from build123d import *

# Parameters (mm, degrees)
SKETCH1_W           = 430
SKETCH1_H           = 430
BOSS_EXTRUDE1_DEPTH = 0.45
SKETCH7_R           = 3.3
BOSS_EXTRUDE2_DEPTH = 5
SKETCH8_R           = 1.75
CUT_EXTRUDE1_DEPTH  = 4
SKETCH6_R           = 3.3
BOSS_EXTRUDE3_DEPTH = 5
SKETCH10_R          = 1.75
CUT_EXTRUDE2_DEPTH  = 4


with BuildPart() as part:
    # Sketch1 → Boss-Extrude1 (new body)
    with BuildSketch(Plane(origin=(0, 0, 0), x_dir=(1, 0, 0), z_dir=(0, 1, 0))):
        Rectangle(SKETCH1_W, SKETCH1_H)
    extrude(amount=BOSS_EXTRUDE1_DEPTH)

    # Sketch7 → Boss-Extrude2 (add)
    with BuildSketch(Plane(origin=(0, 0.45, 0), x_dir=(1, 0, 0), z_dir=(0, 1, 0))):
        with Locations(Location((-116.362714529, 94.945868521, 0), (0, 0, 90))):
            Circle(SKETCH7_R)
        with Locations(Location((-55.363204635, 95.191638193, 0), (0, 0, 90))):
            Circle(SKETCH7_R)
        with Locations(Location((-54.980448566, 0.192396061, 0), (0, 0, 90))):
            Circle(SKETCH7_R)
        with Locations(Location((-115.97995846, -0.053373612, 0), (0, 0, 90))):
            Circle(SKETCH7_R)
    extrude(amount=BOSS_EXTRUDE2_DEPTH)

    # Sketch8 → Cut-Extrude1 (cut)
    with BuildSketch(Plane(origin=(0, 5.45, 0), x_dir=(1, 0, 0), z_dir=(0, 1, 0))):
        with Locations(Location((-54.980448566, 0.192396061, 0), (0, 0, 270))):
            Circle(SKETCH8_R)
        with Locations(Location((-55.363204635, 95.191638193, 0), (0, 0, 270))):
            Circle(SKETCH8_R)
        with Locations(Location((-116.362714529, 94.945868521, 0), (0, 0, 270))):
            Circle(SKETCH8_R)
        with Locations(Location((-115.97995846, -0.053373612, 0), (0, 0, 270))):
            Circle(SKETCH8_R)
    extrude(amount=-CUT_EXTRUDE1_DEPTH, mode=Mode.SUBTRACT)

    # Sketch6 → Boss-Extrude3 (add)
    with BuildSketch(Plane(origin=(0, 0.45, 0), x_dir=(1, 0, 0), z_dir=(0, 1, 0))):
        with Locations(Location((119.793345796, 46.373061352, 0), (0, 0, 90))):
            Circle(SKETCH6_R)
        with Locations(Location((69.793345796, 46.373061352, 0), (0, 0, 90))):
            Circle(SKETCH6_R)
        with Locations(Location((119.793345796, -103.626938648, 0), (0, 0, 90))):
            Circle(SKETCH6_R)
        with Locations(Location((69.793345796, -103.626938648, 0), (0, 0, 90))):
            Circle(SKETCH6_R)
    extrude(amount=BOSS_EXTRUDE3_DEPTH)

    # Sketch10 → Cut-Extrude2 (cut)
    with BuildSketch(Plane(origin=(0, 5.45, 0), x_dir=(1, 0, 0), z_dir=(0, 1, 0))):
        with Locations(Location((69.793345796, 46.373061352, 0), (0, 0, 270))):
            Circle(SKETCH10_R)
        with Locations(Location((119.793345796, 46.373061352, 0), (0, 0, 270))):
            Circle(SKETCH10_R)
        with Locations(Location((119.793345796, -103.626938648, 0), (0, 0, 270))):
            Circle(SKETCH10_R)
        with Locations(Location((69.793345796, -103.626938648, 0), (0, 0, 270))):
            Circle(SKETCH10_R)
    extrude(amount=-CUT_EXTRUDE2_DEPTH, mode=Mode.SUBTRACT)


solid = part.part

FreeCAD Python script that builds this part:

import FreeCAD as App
import Part
import Sketcher
from FreeCAD import Vector


def add_polygon(sketch, points):
    """Adds a closed chain of lines whose ends are joined by coincident constraints."""
    first, n = sketch.GeometryCount, len(points)
    for a, b in zip(points, points[1:] + points[:1]):
        sketch.addGeometry(Part.LineSegment(App.Vector(*a, 0), App.Vector(*b, 0)), False)
    for i in range(n):
        sketch.addConstraint(Sketcher.Constraint("Coincident", first + i, 2, first + (i + 1) % n, 1))

doc = App.newDocument("Part")
body = doc.addObject("PartDesign::Body", "Body")

# Sketch on XZ plane
sketch1 = body.newObject("Sketcher::SketchObject", "Sketch")
sketch1.AttachmentSupport = (doc.getObject("XZ_Plane"), [""])
sketch1.MapMode = "FlatFace"
add_polygon(sketch1, [(-215, -215), (-215, 215), (215, 215), (215, -215)])  # lines 0-3
sketch1.addConstraint([
    Sketcher.Constraint("Vertical", 0),
    Sketcher.Constraint("Horizontal", 1),
    Sketcher.Constraint("Vertical", 2),
    Sketcher.Constraint("Horizontal", 3),
    Sketcher.Constraint("Symmetric", 0, 2, 2, 2, -1, 1),
    Sketcher.Constraint("Equal", 3, 0),
    Sketcher.Constraint("DistanceX", 1, 1, 1, 2, 430.0),
])
pad1 = body.newObject("PartDesign::Pad", "Pad")
pad1.Profile = sketch1
pad1.Length = 0.45
pad1.Reversed = True

# Sketch on XZ plane
sketch2 = body.newObject("Sketcher::SketchObject", "Sketch001")
sketch2.AttachmentSupport = (doc.getObject("XZ_Plane"), [""])
sketch2.MapMode = "FlatFace"
sketch2.AttachmentOffset = App.Placement(Vector(0, 0, -0.45), App.Rotation())
sketch2.addGeometry([
    Part.Circle(Vector(-116.362715, -94.945869, 0), Vector(0, 0, 1), 3.3),
    Part.Circle(Vector(-55.363205, -95.191638, 0), Vector(0, 0, 1), 3.3),
    Part.Circle(Vector(-54.980449, -0.192396, 0), Vector(0, 0, 1), 3.3),
    Part.Circle(Vector(-115.979958, 0.053374, 0), Vector(0, 0, 1), 3.3),
], False)
sketch2.addConstraint([
    Sketcher.Constraint("Equal", 0, 1),
    Sketcher.Constraint("Equal", 1, 2),
    Sketcher.Constraint("Equal", 2, 3),
    Sketcher.Constraint("Diameter", 0, 6.6),
    Sketcher.Constraint("DistanceY", 0, 3, -1, 1, 94.945869),
    Sketcher.Constraint("DistanceY", 1, 3, -1, 1, 95.191638),
    Sketcher.Constraint("DistanceX", 2, 3, -1, 1, 54.980449),
    Sketcher.Constraint("DistanceX", 3, 3, -1, 1, 115.979958),
    Sketcher.Constraint("DistanceX", 0, 3, 1, 3, 60.99951),
    Sketcher.Constraint("DistanceY", 2, 3, 3, 3, 0.24577),
    Sketcher.Constraint("DistanceY", 1, 3, 3, 3, 95.245012),
    Sketcher.Constraint("DistanceX", 0, 3, -1, 1, 116.362715),
])
pad2 = body.newObject("PartDesign::Pad", "Pad001")
pad2.Profile = sketch2
pad2.Length = 5
pad2.Reversed = True

# Sketch on XZ plane
sketch3 = body.newObject("Sketcher::SketchObject", "Sketch002")
sketch3.AttachmentSupport = (doc.getObject("XZ_Plane"), [""])
sketch3.MapMode = "FlatFace"
sketch3.AttachmentOffset = App.Placement(Vector(0, 0, -5.45), App.Rotation())
sketch3.addGeometry([
    Part.Circle(Vector(-54.980449, -0.192396, 0), Vector(0, 0, 1), 1.75),
    Part.Circle(Vector(-55.363205, -95.191638, 0), Vector(0, 0, 1), 1.75),
    Part.Circle(Vector(-116.362715, -94.945869, 0), Vector(0, 0, 1), 1.75),
    Part.Circle(Vector(-115.979958, 0.053374, 0), Vector(0, 0, 1), 1.75),
], False)
sketch3.addConstraint([
    Sketcher.Constraint("Equal", 0, 1),
    Sketcher.Constraint("Equal", 1, 2),
    Sketcher.Constraint("Equal", 2, 3),
    Sketcher.Constraint("Diameter", 0, 3.5),
    Sketcher.Constraint("DistanceX", 0, 3, -1, 1, 54.980449),
    Sketcher.Constraint("DistanceY", 1, 3, -1, 1, 95.191638),
    Sketcher.Constraint("DistanceY", 2, 3, -1, 1, 94.945869),
    Sketcher.Constraint("DistanceX", 3, 3, -1, 1, 115.979958),
    Sketcher.Constraint("DistanceX", 2, 3, 1, 3, 60.99951),
    Sketcher.Constraint("DistanceY", 0, 3, 3, 3, 0.24577),
    Sketcher.Constraint("DistanceY", 1, 3, 3, 3, 95.245012),
    Sketcher.Constraint("DistanceX", 1, 3, -1, 1, 55.363205),
])
pocket1 = body.newObject("PartDesign::Pocket", "Pocket")
pocket1.Profile = sketch3
pocket1.Length = 4
pocket1.Reversed = True

# Sketch on XZ plane
sketch4 = body.newObject("Sketcher::SketchObject", "Sketch003")
sketch4.AttachmentSupport = (doc.getObject("XZ_Plane"), [""])
sketch4.MapMode = "FlatFace"
sketch4.AttachmentOffset = App.Placement(Vector(0, 0, -0.45), App.Rotation())
sketch4.addGeometry([
    Part.Circle(Vector(119.793346, -46.373061, 0), Vector(0, 0, 1), 3.3),
    Part.Circle(Vector(69.793346, -46.373061, 0), Vector(0, 0, 1), 3.3),
    Part.Circle(Vector(119.793346, 103.626939, 0), Vector(0, 0, 1), 3.3),
    Part.Circle(Vector(69.793346, 103.626939, 0), Vector(0, 0, 1), 3.3),
], False)
sketch4.addConstraint([
    Sketcher.Constraint("Equal", 0, 1),
    Sketcher.Constraint("Equal", 1, 2),
    Sketcher.Constraint("Equal", 2, 3),
    Sketcher.Constraint("Horizontal", 0, 3, 1, 3),
    Sketcher.Constraint("Horizontal", 2, 3, 3, 3),
    Sketcher.Constraint("Vertical", 0, 3, 2, 3),
    Sketcher.Constraint("Vertical", 1, 3, 3, 3),
    Sketcher.Constraint("Diameter", 0, 6.6),
    Sketcher.Constraint("DistanceX", 1, 3, 0, 3, 50.0),
    Sketcher.Constraint("DistanceY", 0, 3, 2, 3, 150.0),
    Sketcher.Constraint("DistanceY", 0, 3, -1, 1, 46.373061),
    Sketcher.Constraint("DistanceX", -1, 1, 0, 3, 119.793346),
])
pad3 = body.newObject("PartDesign::Pad", "Pad002")
pad3.Profile = sketch4
pad3.Length = 5
pad3.Reversed = True

# Sketch on XZ plane
sketch5 = body.newObject("Sketcher::SketchObject", "Sketch004")
sketch5.AttachmentSupport = (doc.getObject("XZ_Plane"), [""])
sketch5.MapMode = "FlatFace"
sketch5.AttachmentOffset = App.Placement(Vector(0, 0, -5.45), App.Rotation())
sketch5.addGeometry([
    Part.Circle(Vector(69.793346, -46.373061, 0), Vector(0, 0, 1), 1.75),
    Part.Circle(Vector(119.793346, -46.373061, 0), Vector(0, 0, 1), 1.75),
    Part.Circle(Vector(119.793346, 103.626939, 0), Vector(0, 0, 1), 1.75),
    Part.Circle(Vector(69.793346, 103.626939, 0), Vector(0, 0, 1), 1.75),
], False)
sketch5.addConstraint([
    Sketcher.Constraint("Equal", 0, 1),
    Sketcher.Constraint("Equal", 1, 2),
    Sketcher.Constraint("Equal", 2, 3),
    Sketcher.Constraint("Horizontal", 0, 3, 1, 3),
    Sketcher.Constraint("Horizontal", 2, 3, 3, 3),
    Sketcher.Constraint("Vertical", 1, 3, 2, 3),
    Sketcher.Constraint("Vertical", 0, 3, 3, 3),
    Sketcher.Constraint("Diameter", 0, 3.5),
    Sketcher.Constraint("DistanceX", 0, 3, 1, 3, 50.0),
    Sketcher.Constraint("DistanceY", 1, 3, 2, 3, 150.0),
    Sketcher.Constraint("DistanceY", 0, 3, -1, 1, 46.373061),
    Sketcher.Constraint("DistanceX", -1, 1, 0, 3, 69.793346),
])
pocket2 = body.newObject("PartDesign::Pocket", "Pocket001")
pocket2.Profile = sketch5
pocket2.Length = 4
pocket2.Reversed = True

doc.recompute()
